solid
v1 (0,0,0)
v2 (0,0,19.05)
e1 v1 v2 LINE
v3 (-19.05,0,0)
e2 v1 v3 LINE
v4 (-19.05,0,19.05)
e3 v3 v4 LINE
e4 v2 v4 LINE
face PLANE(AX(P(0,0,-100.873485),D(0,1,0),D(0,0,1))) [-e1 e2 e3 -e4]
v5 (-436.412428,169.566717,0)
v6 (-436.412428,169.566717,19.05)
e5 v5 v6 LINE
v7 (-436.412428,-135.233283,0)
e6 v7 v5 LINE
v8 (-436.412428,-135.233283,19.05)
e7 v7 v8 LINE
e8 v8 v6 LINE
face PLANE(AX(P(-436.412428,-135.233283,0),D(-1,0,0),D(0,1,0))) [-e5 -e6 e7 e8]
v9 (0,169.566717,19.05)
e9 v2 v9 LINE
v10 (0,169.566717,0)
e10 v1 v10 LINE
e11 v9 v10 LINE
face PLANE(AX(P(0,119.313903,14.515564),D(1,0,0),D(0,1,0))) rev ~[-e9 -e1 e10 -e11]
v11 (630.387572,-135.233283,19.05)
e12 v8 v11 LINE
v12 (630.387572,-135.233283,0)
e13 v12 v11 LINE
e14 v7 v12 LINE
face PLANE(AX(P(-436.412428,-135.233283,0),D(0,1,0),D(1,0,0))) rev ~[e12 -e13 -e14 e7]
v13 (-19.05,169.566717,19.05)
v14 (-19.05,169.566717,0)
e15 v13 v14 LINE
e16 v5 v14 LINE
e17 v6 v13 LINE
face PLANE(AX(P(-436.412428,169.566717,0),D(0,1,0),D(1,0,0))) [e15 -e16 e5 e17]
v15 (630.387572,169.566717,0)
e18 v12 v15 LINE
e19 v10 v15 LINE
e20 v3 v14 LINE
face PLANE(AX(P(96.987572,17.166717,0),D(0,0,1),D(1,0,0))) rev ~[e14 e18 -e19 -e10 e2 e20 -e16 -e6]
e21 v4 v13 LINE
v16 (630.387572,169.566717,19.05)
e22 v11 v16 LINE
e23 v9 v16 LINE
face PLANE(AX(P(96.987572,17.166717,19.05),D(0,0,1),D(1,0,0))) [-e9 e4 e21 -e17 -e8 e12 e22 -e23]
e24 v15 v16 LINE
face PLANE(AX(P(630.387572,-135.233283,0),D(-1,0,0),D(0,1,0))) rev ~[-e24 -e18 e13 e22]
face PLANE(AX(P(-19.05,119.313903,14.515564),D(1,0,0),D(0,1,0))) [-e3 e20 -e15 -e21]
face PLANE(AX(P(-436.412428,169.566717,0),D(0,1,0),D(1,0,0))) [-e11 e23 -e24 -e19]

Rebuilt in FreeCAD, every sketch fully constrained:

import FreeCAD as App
import Part
import Sketcher
Q = App.Units.Quantity

doc = App.newDocument("Part")
params = doc.addObject("Spreadsheet::Sheet", "Params")
for row, (alias, value) in enumerate([
    ("sketch1_width", "42 in"),
    ("sketch1_height", "12 in"),
    ("pad1_length", "0.75 in"),
    ("pocket1_length", "0.75 in"),
], start=1):
    params.set(f"A{row}", alias)
    params.set(f"B{row}", "=" + value)
    params.setAlias(f"B{row}", alias)

body = doc.addObject("PartDesign::Body", "Body")

# Sketch on XY plane
sketch1 = body.newObject("Sketcher::SketchObject", "Sketch")
sketch1.AttachmentSupport = (doc.getObject("XY_Plane"), [""])
sketch1.MapMode = "FlatFace"
sketch1.addGeometry([
    Part.LineSegment(App.Vector(-436, 170, 0), App.Vector(-436, -135, 0)),
    Part.LineSegment(App.Vector(-436, -135, 0), App.Vector(630, -135, 0)),
    Part.LineSegment(App.Vector(630, -135, 0), App.Vector(630, 170, 0)),
    Part.LineSegment(App.Vector(630, 170, 0), App.Vector(-436, 170, 0)),
], False)
sketch1.addConstraint([
    Sketcher.Constraint("Coincident", 0, 2, 1, 1),
    Sketcher.Constraint("Coincident", 1, 2, 2, 1),
    Sketcher.Constraint("Coincident", 2, 2, 3, 1),
    Sketcher.Constraint("Coincident", 3, 2, 0, 1),
    Sketcher.Constraint("Vertical", 0),
    Sketcher.Constraint("Horizontal", 1),
    Sketcher.Constraint("Vertical", 2),
    Sketcher.Constraint("Horizontal", 3),
    Sketcher.Constraint("DistanceX", 1, 1, 1, 2, Q("42 in")),
    Sketcher.Constraint("DistanceY", 0, 2, 0, 1, Q("12 in")),
    Sketcher.Constraint("DistanceX", 0, 2, -1, 1, 436.412428),
    Sketcher.Constraint("DistanceY", 0, 2, -1, 1, 135.233283),
])
sketch1.setExpression("Constraints[8]", "Params.sketch1_width")
sketch1.setExpression("Constraints[9]", "Params.sketch1_height")
pad1 = body.newObject("PartDesign::Pad", "Pad")
pad1.Profile = sketch1
pad1.setExpression("Length", "Params.pad1_length")

# Sketch on YZ plane
sketch2 = body.newObject("Sketcher::SketchObject", "Sketch001")
sketch2.AttachmentSupport = (doc.getObject("YZ_Plane"), [""])
sketch2.MapMode = "FlatFace"
sketch2.addGeometry([
    Part.LineSegment(App.Vector(0, 130, 0), App.Vector(0, -101, 0)),
    Part.LineSegment(App.Vector(0, -101, 0), App.Vector(239, -101, 0)),
    Part.LineSegment(App.Vector(239, -101, 0), App.Vector(239, 130, 0)),
    Part.LineSegment(App.Vector(239, 130, 0), App.Vector(0, 130, 0)),
], False)
sketch2.addConstraint([
    Sketcher.Constraint("Coincident", 0, 2, 1, 1),
    Sketcher.Constraint("Coincident", 1, 2, 2, 1),
    Sketcher.Constraint("Coincident", 2, 2, 3, 1),
    Sketcher.Constraint("Coincident", 3, 2, 0, 1),
    Sketcher.Constraint("Vertical", 0),
    Sketcher.Constraint("Horizontal", 1),
    Sketcher.Constraint("Vertical", 2),
    Sketcher.Constraint("Horizontal", 3),
    Sketcher.Constraint("PointOnObject", 0, 2, -2),
    Sketcher.Constraint("DistanceY", 0, 2, 0, 1, 230.778098),
    Sketcher.Constraint("DistanceX", 1, 1, 1, 2, 238.627806),
    Sketcher.Constraint("DistanceY", 0, 2, -1, 1, 100.873485),
])
pocket1 = body.newObject("PartDesign::Pocket", "Pocket")
pocket1.Profile = sketch2
pocket1.setExpression("Length", "Params.pocket1_length")

doc.recompute()
